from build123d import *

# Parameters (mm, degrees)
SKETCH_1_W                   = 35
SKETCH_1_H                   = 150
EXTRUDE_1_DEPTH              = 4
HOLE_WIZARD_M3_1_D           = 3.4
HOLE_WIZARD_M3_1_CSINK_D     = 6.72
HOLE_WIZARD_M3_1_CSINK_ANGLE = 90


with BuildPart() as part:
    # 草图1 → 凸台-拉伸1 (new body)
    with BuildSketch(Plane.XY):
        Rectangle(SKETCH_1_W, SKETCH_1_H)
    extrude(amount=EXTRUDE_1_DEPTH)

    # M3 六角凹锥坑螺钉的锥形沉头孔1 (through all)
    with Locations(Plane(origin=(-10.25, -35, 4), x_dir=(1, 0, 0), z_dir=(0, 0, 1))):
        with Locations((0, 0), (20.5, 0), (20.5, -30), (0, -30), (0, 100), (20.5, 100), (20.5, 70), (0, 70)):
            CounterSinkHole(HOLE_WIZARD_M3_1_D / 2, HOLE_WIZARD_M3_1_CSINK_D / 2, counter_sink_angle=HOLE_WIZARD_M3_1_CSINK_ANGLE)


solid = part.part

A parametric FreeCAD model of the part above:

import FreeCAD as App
import Part
import Sketcher
Q = App.Units.Quantity

doc = App.newDocument("Part")
body = doc.addObject("PartDesign::Body", "Body")

sketch1 = body.newObject("Sketcher::SketchObject", "Sketch")
sketch1.AttachmentSupport = (doc.getObject("XY_Plane"), [""])
sketch1.MapMode = "FlatFace"
sketch1.addGeometry([
    Part.LineSegment(App.Vector(-17.5, 75, 0), App.Vector(-17.5, -75, 0)),
    Part.LineSegment(App.Vector(-17.5, -75, 0), App.Vector(17.5, -75, 0)),
    Part.LineSegment(App.Vector(17.5, -75, 0), App.Vector(17.5, 75, 0)),
    Part.LineSegment(App.Vector(17.5, 75, 0), App.Vector(-17.5, 75, 0)),
], False)
sketch1.addConstraint([
    Sketcher.Constraint("Coincident", 0, 2, 1, 1),
    Sketcher.Constraint("Coincident", 1, 2, 2, 1),
    Sketcher.Constraint("Coincident", 2, 2, 3, 1),
    Sketcher.Constraint("Coincident", 3, 2, 0, 1),
    Sketcher.Constraint("Vertical", 0),
    Sketcher.Constraint("Horizontal", 1),
    Sketcher.Constraint("Vertical", 2),
    Sketcher.Constraint("Horizontal", 3),
    Sketcher.Constraint("Symmetric", 0, 2, 2, 2, -1, 1),
    Sketcher.Constraint("DistanceX", 1, 1, 1, 2, Q("35 mm")),
    Sketcher.Constraint("DistanceY", 0, 2, 0, 1, Q("150 mm")),
])
pad1 = body.newObject("PartDesign::Pad", "Pad")
pad1.Profile = sketch1
pad1.Length = 4

sketch2 = body.newObject("Sketcher::SketchObject", "Sketch001")
sketch2.AttachmentSupport = (doc.getObject("XY_Plane"), [""])
sketch2.MapMode = "FlatFace"
sketch2.AttachmentOffset = App.Placement(App.Vector(0, 0, 4), App.Rotation())
sketch2.addGeometry([
    Part.Circle(App.Vector(-10.25, -35, 0), App.Vector(0, 0, 1), 1.7),
    Part.Circle(App.Vector(10.25, -35, 0), App.Vector(0, 0, 1), 1.7),
    Part.Circle(App.Vector(10.25, -65, 0), App.Vector(0, 0, 1), 1.7),
    Part.Circle(App.Vector(-10.25, -65, 0), App.Vector(0, 0, 1), 1.7),
    Part.Circle(App.Vector(-10.25, 65, 0), App.Vector(0, 0, 1), 1.7),
    Part.Circle(App.Vector(10.25, 65, 0), App.Vector(0, 0, 1), 1.7),
    Part.Circle(App.Vector(10.25, 35, 0), App.Vector(0, 0, 1), 1.7),
    Part.Circle(App.Vector(-10.25, 35, 0), App.Vector(0, 0, 1), 1.7),
], False)
sketch2.addConstraint([
    Sketcher.Constraint("Equal", 0, 1),
    Sketcher.Constraint("Equal", 1, 2),
    Sketcher.Constraint("Equal", 2, 3),
    Sketcher.Constraint("Equal", 3, 4),
    Sketcher.Constraint("Equal", 4, 5),
    Sketcher.Constraint("Equal", 5, 6),
    Sketcher.Constraint("Equal", 6, 7),
    Sketcher.Constraint("Symmetric", 2, 3, 4, 3, -1, 1),
    Sketcher.Constraint("Symmetric", 3, 3, 5, 3, -1, 1),
    Sketcher.Constraint("Symmetric", 0, 3, 6, 3, -1, 1),
    Sketcher.Constraint("Symmetric", 1, 3, 7, 3, -1, 1),
    Sketcher.Constraint("Symmetric", 0, 3, 1, 3, -2),
    Sketcher.Constraint("Symmetric", 2, 3, 3, 3, -2),
    Sketcher.Constraint("Vertical", 1, 3, 2, 3),
    Sketcher.Constraint("Diameter", 0, Q("3.4 mm")),
    Sketcher.Constraint("DistanceY", 0, 3, -1, 1, Q("35 mm")),
    Sketcher.Constraint("DistanceY", 2, 3, -1, 1, Q("65 mm")),
    Sketcher.Constraint("DistanceX", 0, 3, 1, 3, Q("20.5 mm")),
])
doc.recompute()
hole = body.newObject("PartDesign::Hole", "Hole")
hole.Profile = sketch2
hole.ThreadType = "None"
hole.Diameter = 3.4
hole.DepthType = "ThroughAll"
hole.HoleCutType = "Countersink"
hole.HoleCutDiameter = 6.72
hole.HoleCutCountersinkAngle = 90

doc.recompute()
